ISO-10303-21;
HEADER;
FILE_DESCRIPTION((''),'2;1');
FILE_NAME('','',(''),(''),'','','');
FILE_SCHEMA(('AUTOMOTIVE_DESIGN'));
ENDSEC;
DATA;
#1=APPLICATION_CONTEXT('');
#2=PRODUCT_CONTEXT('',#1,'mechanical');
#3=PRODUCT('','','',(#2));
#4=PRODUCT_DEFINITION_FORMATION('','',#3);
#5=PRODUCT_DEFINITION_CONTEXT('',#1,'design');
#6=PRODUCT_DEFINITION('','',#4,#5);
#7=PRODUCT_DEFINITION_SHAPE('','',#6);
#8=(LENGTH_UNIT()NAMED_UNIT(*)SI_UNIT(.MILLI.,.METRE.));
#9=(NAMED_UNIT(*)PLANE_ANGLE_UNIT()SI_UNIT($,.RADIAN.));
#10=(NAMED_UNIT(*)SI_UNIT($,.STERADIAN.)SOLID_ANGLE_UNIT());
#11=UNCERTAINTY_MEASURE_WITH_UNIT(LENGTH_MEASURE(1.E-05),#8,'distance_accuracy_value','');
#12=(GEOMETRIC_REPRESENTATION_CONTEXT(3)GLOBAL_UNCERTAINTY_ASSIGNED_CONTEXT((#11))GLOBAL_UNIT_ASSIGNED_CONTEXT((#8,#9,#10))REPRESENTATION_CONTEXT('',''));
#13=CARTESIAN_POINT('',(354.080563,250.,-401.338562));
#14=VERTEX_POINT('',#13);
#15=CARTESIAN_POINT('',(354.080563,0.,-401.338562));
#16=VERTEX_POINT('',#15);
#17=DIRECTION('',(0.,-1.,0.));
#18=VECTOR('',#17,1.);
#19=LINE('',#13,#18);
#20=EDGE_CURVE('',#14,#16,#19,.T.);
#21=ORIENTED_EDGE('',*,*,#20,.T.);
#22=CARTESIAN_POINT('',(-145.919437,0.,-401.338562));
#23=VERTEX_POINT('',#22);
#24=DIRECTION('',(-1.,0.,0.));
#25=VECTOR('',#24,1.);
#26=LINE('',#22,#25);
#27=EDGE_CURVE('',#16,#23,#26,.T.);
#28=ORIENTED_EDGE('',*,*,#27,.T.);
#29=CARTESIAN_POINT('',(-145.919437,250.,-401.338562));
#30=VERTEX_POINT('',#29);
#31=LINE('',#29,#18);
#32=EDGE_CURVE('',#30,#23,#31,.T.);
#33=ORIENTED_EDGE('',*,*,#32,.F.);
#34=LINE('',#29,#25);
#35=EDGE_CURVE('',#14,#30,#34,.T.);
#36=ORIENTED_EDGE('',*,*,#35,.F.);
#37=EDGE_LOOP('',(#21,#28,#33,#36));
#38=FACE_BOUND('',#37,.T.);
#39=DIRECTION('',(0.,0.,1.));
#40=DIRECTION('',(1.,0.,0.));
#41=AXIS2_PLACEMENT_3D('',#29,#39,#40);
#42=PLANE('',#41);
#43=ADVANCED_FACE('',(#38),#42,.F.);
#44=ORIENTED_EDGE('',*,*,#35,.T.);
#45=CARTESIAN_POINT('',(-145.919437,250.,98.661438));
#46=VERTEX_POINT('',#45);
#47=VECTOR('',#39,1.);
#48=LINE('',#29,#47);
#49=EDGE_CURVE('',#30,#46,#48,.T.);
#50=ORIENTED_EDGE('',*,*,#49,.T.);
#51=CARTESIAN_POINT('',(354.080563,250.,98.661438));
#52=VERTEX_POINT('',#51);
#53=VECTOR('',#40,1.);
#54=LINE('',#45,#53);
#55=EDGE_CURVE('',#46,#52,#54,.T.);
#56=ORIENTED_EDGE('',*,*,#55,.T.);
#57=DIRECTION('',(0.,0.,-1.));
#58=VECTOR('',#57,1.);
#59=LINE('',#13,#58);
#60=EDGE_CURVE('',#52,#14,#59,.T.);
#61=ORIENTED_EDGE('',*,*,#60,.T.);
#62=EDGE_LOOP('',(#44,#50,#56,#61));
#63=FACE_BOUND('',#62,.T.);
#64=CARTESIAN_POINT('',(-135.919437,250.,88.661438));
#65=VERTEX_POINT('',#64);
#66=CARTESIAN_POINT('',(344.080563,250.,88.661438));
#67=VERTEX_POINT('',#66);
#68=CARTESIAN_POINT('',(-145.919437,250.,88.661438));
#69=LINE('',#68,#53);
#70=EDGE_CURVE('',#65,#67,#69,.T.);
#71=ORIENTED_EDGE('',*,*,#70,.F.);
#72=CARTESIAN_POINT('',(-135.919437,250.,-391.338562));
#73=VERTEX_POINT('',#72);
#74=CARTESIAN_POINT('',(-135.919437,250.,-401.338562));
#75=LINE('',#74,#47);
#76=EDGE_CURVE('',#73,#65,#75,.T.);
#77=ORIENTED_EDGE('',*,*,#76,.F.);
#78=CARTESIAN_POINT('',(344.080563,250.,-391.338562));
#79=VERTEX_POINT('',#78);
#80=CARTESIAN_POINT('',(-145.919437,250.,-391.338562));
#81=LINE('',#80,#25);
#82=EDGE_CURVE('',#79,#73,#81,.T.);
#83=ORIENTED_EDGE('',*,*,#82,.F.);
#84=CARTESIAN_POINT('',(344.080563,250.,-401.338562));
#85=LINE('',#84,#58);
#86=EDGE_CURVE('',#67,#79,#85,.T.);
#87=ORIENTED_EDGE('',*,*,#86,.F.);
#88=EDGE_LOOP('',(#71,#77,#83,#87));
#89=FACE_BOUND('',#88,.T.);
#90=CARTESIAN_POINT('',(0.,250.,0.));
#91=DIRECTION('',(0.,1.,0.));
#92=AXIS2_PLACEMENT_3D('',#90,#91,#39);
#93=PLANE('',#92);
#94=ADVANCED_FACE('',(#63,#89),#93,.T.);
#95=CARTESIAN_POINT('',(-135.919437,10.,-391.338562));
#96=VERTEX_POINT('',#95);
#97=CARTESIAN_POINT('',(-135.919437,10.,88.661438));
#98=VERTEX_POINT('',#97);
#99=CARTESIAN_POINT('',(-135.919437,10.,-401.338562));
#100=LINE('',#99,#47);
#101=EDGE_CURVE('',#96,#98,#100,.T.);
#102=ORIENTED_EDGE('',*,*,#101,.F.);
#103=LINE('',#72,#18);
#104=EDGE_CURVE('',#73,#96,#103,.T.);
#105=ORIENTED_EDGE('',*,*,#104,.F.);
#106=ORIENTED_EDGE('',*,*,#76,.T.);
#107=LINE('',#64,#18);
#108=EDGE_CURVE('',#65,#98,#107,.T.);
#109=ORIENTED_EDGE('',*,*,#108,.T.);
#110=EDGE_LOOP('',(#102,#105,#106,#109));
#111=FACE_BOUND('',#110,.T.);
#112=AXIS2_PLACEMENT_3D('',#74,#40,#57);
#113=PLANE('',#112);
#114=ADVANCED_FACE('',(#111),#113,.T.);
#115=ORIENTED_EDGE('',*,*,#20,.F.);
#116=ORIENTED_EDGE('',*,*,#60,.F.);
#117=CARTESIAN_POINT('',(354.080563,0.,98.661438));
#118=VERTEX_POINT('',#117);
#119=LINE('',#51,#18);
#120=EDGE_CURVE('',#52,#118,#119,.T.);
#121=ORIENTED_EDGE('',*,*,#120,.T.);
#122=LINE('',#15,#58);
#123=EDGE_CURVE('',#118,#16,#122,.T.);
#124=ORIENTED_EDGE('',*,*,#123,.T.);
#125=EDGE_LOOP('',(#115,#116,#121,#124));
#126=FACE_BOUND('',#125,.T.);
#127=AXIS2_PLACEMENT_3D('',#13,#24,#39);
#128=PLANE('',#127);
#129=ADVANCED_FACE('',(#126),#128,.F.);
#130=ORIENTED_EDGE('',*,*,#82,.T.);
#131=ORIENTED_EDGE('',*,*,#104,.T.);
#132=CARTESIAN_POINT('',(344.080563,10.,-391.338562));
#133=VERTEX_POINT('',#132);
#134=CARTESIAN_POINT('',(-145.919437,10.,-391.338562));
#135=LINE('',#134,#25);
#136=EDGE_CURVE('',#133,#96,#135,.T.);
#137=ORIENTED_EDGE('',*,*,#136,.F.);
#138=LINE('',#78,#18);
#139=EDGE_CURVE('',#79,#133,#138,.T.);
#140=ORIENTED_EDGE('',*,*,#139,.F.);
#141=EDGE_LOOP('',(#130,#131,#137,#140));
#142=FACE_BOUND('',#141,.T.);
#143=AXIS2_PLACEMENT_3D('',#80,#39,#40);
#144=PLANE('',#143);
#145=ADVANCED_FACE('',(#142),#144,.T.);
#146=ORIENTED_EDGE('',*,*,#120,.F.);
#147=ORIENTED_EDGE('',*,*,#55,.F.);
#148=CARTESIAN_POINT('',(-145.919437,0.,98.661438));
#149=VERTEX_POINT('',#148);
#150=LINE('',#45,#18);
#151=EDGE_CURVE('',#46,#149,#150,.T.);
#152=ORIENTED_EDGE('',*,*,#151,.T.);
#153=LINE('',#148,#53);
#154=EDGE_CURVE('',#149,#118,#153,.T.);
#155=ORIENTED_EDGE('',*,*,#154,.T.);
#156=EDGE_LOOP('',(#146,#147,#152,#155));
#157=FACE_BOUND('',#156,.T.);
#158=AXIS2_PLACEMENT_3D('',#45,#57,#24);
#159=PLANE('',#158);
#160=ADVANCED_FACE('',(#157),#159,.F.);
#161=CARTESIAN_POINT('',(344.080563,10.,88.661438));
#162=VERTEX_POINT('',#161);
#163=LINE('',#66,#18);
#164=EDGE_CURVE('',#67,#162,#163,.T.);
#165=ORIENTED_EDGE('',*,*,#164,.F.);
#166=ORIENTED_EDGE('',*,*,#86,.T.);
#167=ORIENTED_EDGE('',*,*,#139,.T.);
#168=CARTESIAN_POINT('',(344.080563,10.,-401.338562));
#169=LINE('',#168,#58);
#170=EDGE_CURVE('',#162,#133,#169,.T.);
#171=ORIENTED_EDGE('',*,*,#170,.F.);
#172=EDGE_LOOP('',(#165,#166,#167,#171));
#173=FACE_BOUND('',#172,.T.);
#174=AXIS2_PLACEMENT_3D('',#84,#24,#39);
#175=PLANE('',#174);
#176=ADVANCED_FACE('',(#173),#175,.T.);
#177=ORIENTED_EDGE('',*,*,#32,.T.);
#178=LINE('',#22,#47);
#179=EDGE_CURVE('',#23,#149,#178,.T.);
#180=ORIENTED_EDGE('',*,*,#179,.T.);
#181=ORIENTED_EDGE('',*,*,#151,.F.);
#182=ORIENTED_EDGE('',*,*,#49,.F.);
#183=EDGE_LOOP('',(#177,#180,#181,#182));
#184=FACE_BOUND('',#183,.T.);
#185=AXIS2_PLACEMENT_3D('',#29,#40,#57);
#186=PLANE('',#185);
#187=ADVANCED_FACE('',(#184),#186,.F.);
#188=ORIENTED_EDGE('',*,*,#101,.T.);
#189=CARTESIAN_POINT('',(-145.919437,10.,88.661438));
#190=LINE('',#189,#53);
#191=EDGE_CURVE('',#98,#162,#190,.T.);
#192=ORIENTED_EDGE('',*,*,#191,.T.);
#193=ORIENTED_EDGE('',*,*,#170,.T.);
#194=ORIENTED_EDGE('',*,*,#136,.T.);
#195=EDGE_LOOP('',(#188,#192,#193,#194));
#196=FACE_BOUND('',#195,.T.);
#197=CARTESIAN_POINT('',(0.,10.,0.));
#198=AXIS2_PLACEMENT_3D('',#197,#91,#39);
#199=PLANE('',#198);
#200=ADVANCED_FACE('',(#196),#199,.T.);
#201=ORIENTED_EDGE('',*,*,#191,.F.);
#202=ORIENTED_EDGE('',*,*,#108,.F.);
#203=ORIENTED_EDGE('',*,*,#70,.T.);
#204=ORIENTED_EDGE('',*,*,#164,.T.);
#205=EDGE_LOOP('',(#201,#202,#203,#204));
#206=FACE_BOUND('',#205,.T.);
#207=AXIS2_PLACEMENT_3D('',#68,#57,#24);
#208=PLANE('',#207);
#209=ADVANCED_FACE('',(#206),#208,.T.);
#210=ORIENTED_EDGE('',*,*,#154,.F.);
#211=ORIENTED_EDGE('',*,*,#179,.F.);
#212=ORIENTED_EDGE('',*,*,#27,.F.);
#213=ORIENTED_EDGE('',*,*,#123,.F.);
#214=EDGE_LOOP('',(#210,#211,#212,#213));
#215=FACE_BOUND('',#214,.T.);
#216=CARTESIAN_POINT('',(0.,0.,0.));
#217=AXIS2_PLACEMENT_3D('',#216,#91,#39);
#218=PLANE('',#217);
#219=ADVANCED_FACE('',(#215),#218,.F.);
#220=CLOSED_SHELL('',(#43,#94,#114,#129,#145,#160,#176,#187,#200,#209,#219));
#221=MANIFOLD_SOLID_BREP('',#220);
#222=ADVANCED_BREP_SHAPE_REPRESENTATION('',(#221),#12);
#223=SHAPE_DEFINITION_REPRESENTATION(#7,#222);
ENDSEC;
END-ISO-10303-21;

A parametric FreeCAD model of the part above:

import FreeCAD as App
import Part
import Sketcher
Q = App.Units.Quantity


def faces_at(feature, points):
    """Names of the faces that lie closest to the given points."""
    faces = feature.Shape.Faces
    near = lambda p: min(range(len(faces)), key=lambda i: faces[i].distToShape(Part.Vertex(*p))[0])
    return sorted({f"Face{near(p) + 1}" for p in points})

doc = App.newDocument("Part")
body = doc.addObject("PartDesign::Body", "Body")

# Sketch on XZ plane
sketch1 = doc.addObject("Sketcher::SketchObject", "Sketch")
body.addObject(sketch1)
sketch1.AttachmentSupport = (doc.XZ_Plane, [""])
sketch1.MapMode = "FlatFace"
sketch1.addGeometry([
    Part.LineSegment(App.Vector(-146, -401, 0), App.Vector(-146, 99, 0)),
    Part.LineSegment(App.Vector(-146, 99, 0), App.Vector(354, 99, 0)),
    Part.LineSegment(App.Vector(354, 99, 0), App.Vector(354, -401, 0)),
    Part.LineSegment(App.Vector(354, -401, 0), App.Vector(-146, -401, 0)),
], False)
sketch1.addConstraint([
    Sketcher.Constraint("Coincident", 0, 2, 1, 1),
    Sketcher.Constraint("Coincident", 1, 2, 2, 1),
    Sketcher.Constraint("Coincident", 2, 2, 3, 1),
    Sketcher.Constraint("Coincident", 3, 2, 0, 1),
    Sketcher.Constraint("Vertical", 0),
    Sketcher.Constraint("Horizontal", 1),
    Sketcher.Constraint("Vertical", 2),
    Sketcher.Constraint("Horizontal", 3),
    Sketcher.Constraint("Equal", 3, 0),
    Sketcher.Constraint("DistanceX", 1, 1, 1, 2, Q("500 mm")),
    Sketcher.Constraint("DistanceX", 0, 2, -1, 1, Q("145.919437 mm")),
    Sketcher.Constraint("DistanceY", -1, 1, 0, 2, Q("98.661438 mm")),
])
pad1 = doc.addObject("PartDesign::Pad", "Pad")
body.addObject(pad1)
pad1.Profile = sketch1
pad1.Length = 250
pad1.Reversed = True
doc.recompute()

thickness = doc.addObject("PartDesign::Thickness", "Thickness")
body.addObject(thickness)
thickness.Base = (pad1, faces_at(pad1, [(104.081, 250, -151.339)]))
thickness.Value = 10
thickness.Reversed = True
thickness.Join = "Intersection"

doc.recompute()
